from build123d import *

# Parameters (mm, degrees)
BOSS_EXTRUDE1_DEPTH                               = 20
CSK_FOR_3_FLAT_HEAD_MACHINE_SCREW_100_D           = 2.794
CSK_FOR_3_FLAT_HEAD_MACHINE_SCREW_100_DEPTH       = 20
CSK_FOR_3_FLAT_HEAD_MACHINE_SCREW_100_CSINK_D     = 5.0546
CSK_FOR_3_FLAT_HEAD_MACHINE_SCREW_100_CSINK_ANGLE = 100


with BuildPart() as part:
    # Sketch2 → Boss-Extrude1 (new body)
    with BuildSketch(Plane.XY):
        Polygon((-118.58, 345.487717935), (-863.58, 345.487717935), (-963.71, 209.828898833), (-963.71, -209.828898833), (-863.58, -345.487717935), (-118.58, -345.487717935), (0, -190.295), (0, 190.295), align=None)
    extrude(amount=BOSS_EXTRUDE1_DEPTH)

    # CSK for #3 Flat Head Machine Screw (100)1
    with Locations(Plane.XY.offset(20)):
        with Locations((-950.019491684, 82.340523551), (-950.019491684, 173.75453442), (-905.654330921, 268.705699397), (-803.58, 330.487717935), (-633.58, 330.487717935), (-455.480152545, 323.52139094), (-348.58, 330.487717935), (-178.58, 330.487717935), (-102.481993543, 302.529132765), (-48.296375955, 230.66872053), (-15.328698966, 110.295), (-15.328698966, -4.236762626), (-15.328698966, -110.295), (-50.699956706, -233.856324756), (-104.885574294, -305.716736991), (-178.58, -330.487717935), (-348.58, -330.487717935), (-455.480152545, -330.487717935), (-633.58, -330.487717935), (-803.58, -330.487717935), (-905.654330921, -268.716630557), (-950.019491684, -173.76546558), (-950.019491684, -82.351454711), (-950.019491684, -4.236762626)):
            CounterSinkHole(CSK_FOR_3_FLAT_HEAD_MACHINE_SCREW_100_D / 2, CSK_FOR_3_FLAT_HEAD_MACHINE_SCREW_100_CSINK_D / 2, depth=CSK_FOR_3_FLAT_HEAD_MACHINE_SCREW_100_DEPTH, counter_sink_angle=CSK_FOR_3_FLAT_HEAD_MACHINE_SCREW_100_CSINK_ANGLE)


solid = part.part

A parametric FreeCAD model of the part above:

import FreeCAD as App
import Part
import Sketcher

doc = App.newDocument("Part")
body = doc.addObject("PartDesign::Body", "Body")

# Sketch on XY plane
sketch1 = body.newObject("Sketcher::SketchObject", "Sketch")
sketch1.AttachmentSupport = (doc.getObject("XY_Plane"), [""])
sketch1.MapMode = "FlatFace"
sketch1.addGeometry([
    Part.LineSegment(App.Vector(-119, 345, 0), App.Vector(-864, 345, 0)),  # 0
    Part.LineSegment(App.Vector(-864, 345, 0), App.Vector(-964, 210, 0)),  # 1
    Part.LineSegment(App.Vector(-964, 210, 0), App.Vector(-964, -210, 0)),  # 2
    Part.LineSegment(App.Vector(-964, -210, 0), App.Vector(-864, -345, 0)),  # 3
    Part.LineSegment(App.Vector(-864, -345, 0), App.Vector(-119, -345, 0)),  # 4
    Part.LineSegment(App.Vector(-119, -345, 0), App.Vector(0, -190, 0)),  # 5
    Part.LineSegment(App.Vector(0, -190, 0), App.Vector(0, 190, 0)),  # 6
    Part.LineSegment(App.Vector(0, 190, 0), App.Vector(-119, 345, 0)),  # 7
], False)
sketch1.addConstraint([
    Sketcher.Constraint("Coincident", 0, 2, 1, 1),
    Sketcher.Constraint("Coincident", 1, 2, 2, 1),
    Sketcher.Constraint("Coincident", 2, 2, 3, 1),
    Sketcher.Constraint("Coincident", 3, 2, 4, 1),
    Sketcher.Constraint("Coincident", 4, 2, 5, 1),
    Sketcher.Constraint("Coincident", 5, 2, 6, 1),
    Sketcher.Constraint("Coincident", 6, 2, 7, 1),
    Sketcher.Constraint("Coincident", 7, 2, 0, 1),
    Sketcher.Constraint("Horizontal", 0),
    Sketcher.Constraint("Vertical", 2),
    Sketcher.Constraint("Horizontal", 4),
    Sketcher.Constraint("Vertical", 6),
    Sketcher.Constraint("Symmetric", 5, 2, 6, 2, -1, 1),
    Sketcher.Constraint("Symmetric", 0, 2, 3, 2, -1),
    Sketcher.Constraint("Vertical", 4, 2, 7, 2),
    Sketcher.Constraint("Equal", 1, 3),
    Sketcher.Constraint("DistanceX", 0, 2, 0, 1, 745.0),
    Sketcher.Constraint("DistanceY", 6, 1, 6, 2, 380.59),
    Sketcher.Constraint("Distance", 1, 168.61),
    Sketcher.Constraint("Distance", 5, 195.31),
    Sketcher.Constraint("DistanceX", 0, 2, -1, 1, 863.58),
    Sketcher.Constraint("DistanceX", 1, 2, -1, 1, 963.71),
])
pad1 = body.newObject("PartDesign::Pad", "Pad")
pad1.Profile = sketch1
pad1.Length = 20

# Sketch on XY plane
sketch2 = body.newObject("Sketcher::SketchObject", "Sketch001")
sketch2.AttachmentSupport = (doc.getObject("XY_Plane"), [""])
sketch2.MapMode = "FlatFace"
sketch2.AttachmentOffset = App.Placement(App.Vector(0, 0, 20), App.Rotation())
sketch2.addGeometry([
    Part.Circle(App.Vector(-950, 82.3, 0), App.Vector(0, 0, 1), 1.4),  # 0
    Part.Circle(App.Vector(-950, 173.8, 0), App.Vector(0, 0, 1), 1.4),  # 1
    Part.Circle(App.Vector(-905.7, 268.7, 0), App.Vector(0, 0, 1), 1.4),  # 2
    Part.Circle(App.Vector(-803.6, 330.5, 0), App.Vector(0, 0, 1), 1.4),  # 3
    Part.Circle(App.Vector(-633.6, 330.5, 0), App.Vector(0, 0, 1), 1.4),  # 4
    Part.Circle(App.Vector(-455.5, 323.5, 0), App.Vector(0, 0, 1), 1.4),  # 5
    Part.Circle(App.Vector(-348.6, 330.5, 0), App.Vector(0, 0, 1), 1.4),  # 6
    Part.Circle(App.Vector(-178.6, 330.5, 0), App.Vector(0, 0, 1), 1.4),  # 7
    Part.Circle(App.Vector(-102.5, 302.5, 0), App.Vector(0, 0, 1), 1.4),  # 8
    Part.Circle(App.Vector(-48.3, 230.7, 0), App.Vector(0, 0, 1), 1.4),  # 9
    Part.Circle(App.Vector(-15.3, 110.3, 0), App.Vector(0, 0, 1), 1.4),  # 10
    Part.Circle(App.Vector(-15.3, -4.2, 0), App.Vector(0, 0, 1), 1.4),  # 11
    Part.Circle(App.Vector(-15.3, -110.3, 0), App.Vector(0, 0, 1), 1.4),  # 12
    Part.Circle(App.Vector(-50.7, -233.9, 0), App.Vector(0, 0, 1), 1.4),  # 13
    Part.Circle(App.Vector(-104.9, -305.7, 0), App.Vector(0, 0, 1), 1.4),  # 14
    Part.Circle(App.Vector(-178.6, -330.5, 0), App.Vector(0, 0, 1), 1.4),  # 15
    Part.Circle(App.Vector(-348.6, -330.5, 0), App.Vector(0, 0, 1), 1.4),  # 16
    Part.Circle(App.Vector(-455.5, -330.5, 0), App.Vector(0, 0, 1), 1.4),  # 17
    Part.Circle(App.Vector(-633.6, -330.5, 0), App.Vector(0, 0, 1), 1.4),  # 18
    Part.Circle(App.Vector(-803.6, -330.5, 0), App.Vector(0, 0, 1), 1.4),  # 19
    Part.Circle(App.Vector(-905.7, -268.7, 0), App.Vector(0, 0, 1), 1.4),  # 20
    Part.Circle(App.Vector(-950, -173.8, 0), App.Vector(0, 0, 1), 1.4),  # 21
    Part.Circle(App.Vector(-950, -82.4, 0), App.Vector(0, 0, 1), 1.4),  # 22
    Part.Circle(App.Vector(-950, -4.2, 0), App.Vector(0, 0, 1), 1.4),  # 23
], False)
sketch2.addConstraint([
    Sketcher.Constraint("Equal", 0, 1),
    Sketcher.Constraint("Equal", 1, 2),
    Sketcher.Constraint("Equal", 2, 3),
    Sketcher.Constraint("Equal", 3, 4),
    Sketcher.Constraint("Equal", 4, 5),
    Sketcher.Constraint("Equal", 5, 6),
    Sketcher.Constraint("Equal", 6, 7),
    Sketcher.Constraint("Equal", 7, 8),
    Sketcher.Constraint("Equal", 8, 9),
    Sketcher.Constraint("Equal", 9, 10),
    Sketcher.Constraint("Equal", 10, 11),
    Sketcher.Constraint("Equal", 11, 12),
    Sketcher.Constraint("Equal", 12, 13),
    Sketcher.Constraint("Equal", 13, 14),
    Sketcher.Constraint("Equal", 14, 15),
    Sketcher.Constraint("Equal", 15, 16),
    Sketcher.Constraint("Equal", 16, 17),
    Sketcher.Constraint("Equal", 17, 18),
    Sketcher.Constraint("Equal", 18, 19),
    Sketcher.Constraint("Equal", 19, 20),
    Sketcher.Constraint("Equal", 20, 21),
    Sketcher.Constraint("Equal", 21, 22),
    Sketcher.Constraint("Equal", 22, 23),
    Sketcher.Constraint("Symmetric", 10, 3, 12, 3, -1),
    Sketcher.Constraint("Symmetric", 7, 3, 15, 3, -1),
    Sketcher.Constraint("Symmetric", 6, 3, 16, 3, -1),
    Sketcher.Constraint("Symmetric", 4, 3, 18, 3, -1),
    Sketcher.Constraint("Symmetric", 3, 3, 19, 3, -1),
    Sketcher.Constraint("Horizontal", 3, 3, 4, 3),
    Sketcher.Constraint("Horizontal", 4, 3, 6, 3),
    Sketcher.Constraint("Horizontal", 6, 3, 7, 3),
    Sketcher.Constraint("Horizontal", 16, 3, 17, 3),
    Sketcher.Constraint("Horizontal", 11, 3, 23, 3),
    Sketcher.Constraint("Vertical", 0, 3, 1, 3),
    Sketcher.Constraint("Vertical", 10, 3, 11, 3),
    Sketcher.Constraint("Vertical", 5, 3, 17, 3),
    Sketcher.Constraint("Vertical", 2, 3, 20, 3),
    Sketcher.Constraint("Vertical", 1, 3, 21, 3),
    Sketcher.Constraint("Vertical", 21, 3, 22, 3),
    Sketcher.Constraint("Vertical", 22, 3, 23, 3),
    Sketcher.Constraint("Diameter", 0, 2.794),
    Sketcher.Constraint("DistanceX", 3, 3, 4, 3, 170.0),
    Sketcher.Constraint("DistanceX", 4, 3, 6, 3, 285.0),
    Sketcher.Constraint("DistanceX", 6, 3, 7, 3, 170.0),
    Sketcher.Constraint("DistanceX", 3, 3, -1, 1, 803.58),
    Sketcher.Constraint("DistanceY", 12, 3, 10, 3, 220.59),
    Sketcher.Constraint("DistanceY", 21, 3, 1, 3, 347.52),
    Sketcher.Constraint("DistanceY", -1, 1, 2, 3, 268.705699),
    Sketcher.Constraint("DistanceX", 10, 3, -1, 1, 15.328699),
    Sketcher.Constraint("DistanceX", 14, 3, 9, 3, 56.589198),
    Sketcher.Constraint("DistanceX", 0, 3, -1, 1, 950.019492),
    Sketcher.Constraint("DistanceX", 2, 3, -1, 1, 905.654331),
    Sketcher.Constraint("DistanceY", -1, 1, 5, 3, 323.521391),
    Sketcher.Constraint("DistanceY", -1, 1, 9, 3, 230.668721),
    Sketcher.Constraint("DistanceY", 20, 3, -1, 1, 268.716631),
    Sketcher.Constraint("DistanceY", 0, 3, 1, 3, 91.414011),
    Sketcher.Constraint("DistanceY", 2, 3, 3, 3, 61.782019),
    Sketcher.Constraint("DistanceX", 2, 3, 5, 3, 450.174178),
    Sketcher.Constraint("DistanceX", 5, 3, 8, 3, 352.998159),
    Sketcher.Constraint("DistanceY", 8, 3, 5, 3, 20.992258),
    Sketcher.Constraint("DistanceY", 11, 3, 7, 3, 334.724481),
    Sketcher.Constraint("DistanceX", 13, 3, 9, 3, 2.403581),
    Sketcher.Constraint("DistanceY", 15, 3, 14, 3, 24.770981),
    Sketcher.Constraint("DistanceX", 17, 3, 14, 3, 350.594578),
    Sketcher.Constraint("DistanceY", 18, 3, 0, 3, 412.828241),
    Sketcher.Constraint("DistanceY", 21, 3, 22, 3, 91.414011),
    Sketcher.Constraint("DistanceY", 13, 3, -1, 1, 233.856325),
])
doc.recompute()
hole = body.newObject("PartDesign::Hole", "Hole")
hole.Profile = sketch2
hole.ThreadType = "None"
hole.Diameter = 2.794
hole.DepthType = "Dimension"
hole.Depth = 20
hole.DrillPoint = "Flat"
hole.HoleCutType = "Countersink"
hole.HoleCutDiameter = 5.0546
hole.HoleCutCountersinkAngle = 100

doc.recompute()
